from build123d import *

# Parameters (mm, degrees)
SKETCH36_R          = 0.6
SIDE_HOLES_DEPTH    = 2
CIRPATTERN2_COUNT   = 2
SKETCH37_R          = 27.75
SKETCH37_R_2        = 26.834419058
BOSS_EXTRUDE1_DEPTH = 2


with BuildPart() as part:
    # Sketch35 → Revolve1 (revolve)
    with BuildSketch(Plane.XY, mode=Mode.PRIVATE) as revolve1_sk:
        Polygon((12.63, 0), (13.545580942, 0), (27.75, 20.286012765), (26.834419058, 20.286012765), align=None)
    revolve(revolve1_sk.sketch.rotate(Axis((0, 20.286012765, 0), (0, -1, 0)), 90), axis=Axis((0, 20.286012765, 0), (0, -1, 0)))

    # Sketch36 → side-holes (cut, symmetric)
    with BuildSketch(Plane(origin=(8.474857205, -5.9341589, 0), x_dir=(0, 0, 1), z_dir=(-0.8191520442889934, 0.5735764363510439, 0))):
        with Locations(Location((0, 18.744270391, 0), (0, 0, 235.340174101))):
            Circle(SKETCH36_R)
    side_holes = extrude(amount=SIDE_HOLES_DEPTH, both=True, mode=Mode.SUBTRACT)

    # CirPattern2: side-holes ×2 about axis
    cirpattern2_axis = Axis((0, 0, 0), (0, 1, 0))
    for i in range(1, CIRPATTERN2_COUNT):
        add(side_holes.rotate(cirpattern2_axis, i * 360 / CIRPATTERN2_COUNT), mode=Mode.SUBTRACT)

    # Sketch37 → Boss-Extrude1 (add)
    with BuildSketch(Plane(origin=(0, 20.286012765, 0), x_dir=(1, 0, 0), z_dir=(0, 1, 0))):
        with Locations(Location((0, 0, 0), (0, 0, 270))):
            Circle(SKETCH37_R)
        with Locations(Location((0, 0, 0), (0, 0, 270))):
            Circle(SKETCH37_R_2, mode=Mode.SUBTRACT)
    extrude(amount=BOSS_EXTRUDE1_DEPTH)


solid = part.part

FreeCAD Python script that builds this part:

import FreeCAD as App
import Part
import Sketcher

V = App.Vector
Q = App.Units.Quantity

doc = App.newDocument("Part")
params = doc.addObject("Spreadsheet::Sheet", "Params")
for row, (alias, value) in enumerate([
    ("revolution_angle", "360 deg"),
    ("sketch2_diameter", "1.2 mm"),
    ("pocket1_length", "4 mm"),
    ("sketch3_diameter", "55.5 mm"),
    ("pad1_length", "2 mm"),
], start=1):
    params.set(f"A{row}", alias)
    params.set(f"B{row}", "=" + value)
    params.setAlias(f"B{row}", alias)

body = doc.addObject("PartDesign::Body", "Body")

# Sketch on XY plane
sketch1 = body.newObject("Sketcher::SketchObject", "Sketch")
sketch1.AttachmentSupport = (doc.getObject("XY_Plane"), [""])
sketch1.MapMode = "FlatFace"
sketch1.addGeometry(Part.LineSegment(V(12.6, 0, 0), V(13.5, 0, 0)), False)
sketch1.addGeometry(Part.LineSegment(V(13.5, 0, 0), V(27.8, 20.3, 0)), False)
sketch1.addGeometry(Part.LineSegment(V(27.8, 20.3, 0), V(26.8, 20.3, 0)), False)
sketch1.addGeometry(Part.LineSegment(V(26.8, 20.3, 0), V(12.6, 0, 0)), False)
sketch1.addConstraint(Sketcher.Constraint("Coincident", 0, 2, 1, 1))
sketch1.addConstraint(Sketcher.Constraint("Coincident", 1, 2, 2, 1))
sketch1.addConstraint(Sketcher.Constraint("Coincident", 2, 2, 3, 1))
sketch1.addConstraint(Sketcher.Constraint("Coincident", 3, 2, 0, 1))
sketch1.addConstraint(Sketcher.Constraint("Horizontal", 0))
sketch1.addConstraint(Sketcher.Constraint("Horizontal", 2))
sketch1.addConstraint(Sketcher.Constraint("PointOnObject", 0, 2, -1))
sketch1.addConstraint(Sketcher.Constraint("Parallel", 1, 3))
sketch1.addConstraint(Sketcher.Constraint("Angle", 1, Q("55 deg")))
sketch1.addConstraint(Sketcher.Constraint("DistanceX", -1, 1, 1, 2, 27.75))
sketch1.addConstraint(Sketcher.Constraint("DistanceX", -1, 1, 3, 2, 12.63))
sketch1.addConstraint(Sketcher.Constraint("DistanceX", 0, 1, 0, 2, 0.915581))
revolution = body.newObject("PartDesign::Revolution", "Revolution")
revolution.Profile = sketch1
revolution.ReferenceAxis = (sketch1, ["V_Axis"])
revolution.setExpression("Angle", "Params.revolution_angle")

# Sketch on an angled plane
sketch2 = body.newObject("Sketcher::SketchObject", "Sketch001")
sketch2.Placement = App.Placement(V(8.474857, -5.934159, 0), App.Rotation(V(0, 0, 1), V(0.573576436, 0.819152044, 0), V(-0.819152044, 0.573576436, 0), "ZXY"))
sketch2.addGeometry(Part.Circle(V(0, 18.7, 0), V(0, 0, 1), 0.6), False)
sketch2.addConstraint(Sketcher.Constraint("PointOnObject", 0, 3, -2))
sketch2.addConstraint(Sketcher.Constraint("Diameter", 0, 1.2))
sketch2.addConstraint(Sketcher.Constraint("DistanceY", -1, 1, 0, 3, 18.74427))
sketch2.setExpression("Constraints[1]", "Params.sketch2_diameter")
pocket1 = body.newObject("PartDesign::Pocket", "Pocket")
pocket1.Profile = sketch2
pocket1.setExpression("Length", "Params.pocket1_length")
pocket1.Midplane = True
doc.recompute()

polarpattern = body.newObject("PartDesign::PolarPattern", "PolarPattern")
polarpattern.Originals = [pocket1]
polarpattern.Axis = (doc.getObject("Y_Axis"), [""])
polarpattern.Angle = 360
polarpattern.Occurrences = 2
body.Tip = polarpattern

# Sketch on XZ plane
sketch3 = body.newObject("Sketcher::SketchObject", "Sketch002")
sketch3.AttachmentSupport = (doc.getObject("XZ_Plane"), [""])
sketch3.MapMode = "FlatFace"
sketch3.AttachmentOffset = App.Placement(V(0, 0, -20.286013), App.Rotation())
sketch3.addGeometry(Part.Circle(V(0, 0, 0), V(0, 0, 1), 28), False)
sketch3.addGeometry(Part.Circle(V(0, 0, 0), V(0, 0, 1), 27), False)
sketch3.addConstraint(Sketcher.Constraint("Coincident", 0, 3, -1, 1))
sketch3.addConstraint(Sketcher.Constraint("Coincident", 1, 3, -1, 1))
sketch3.addConstraint(Sketcher.Constraint("Diameter", 0, 55.5))
sketch3.addConstraint(Sketcher.Constraint("Diameter", 1, 53.668838))
sketch3.setExpression("Constraints[2]", "Params.sketch3_diameter")
pad1 = body.newObject("PartDesign::Pad", "Pad")
pad1.Profile = sketch3
pad1.setExpression("Length", "Params.pad1_length")
pad1.Reversed = True

doc.recompute()
